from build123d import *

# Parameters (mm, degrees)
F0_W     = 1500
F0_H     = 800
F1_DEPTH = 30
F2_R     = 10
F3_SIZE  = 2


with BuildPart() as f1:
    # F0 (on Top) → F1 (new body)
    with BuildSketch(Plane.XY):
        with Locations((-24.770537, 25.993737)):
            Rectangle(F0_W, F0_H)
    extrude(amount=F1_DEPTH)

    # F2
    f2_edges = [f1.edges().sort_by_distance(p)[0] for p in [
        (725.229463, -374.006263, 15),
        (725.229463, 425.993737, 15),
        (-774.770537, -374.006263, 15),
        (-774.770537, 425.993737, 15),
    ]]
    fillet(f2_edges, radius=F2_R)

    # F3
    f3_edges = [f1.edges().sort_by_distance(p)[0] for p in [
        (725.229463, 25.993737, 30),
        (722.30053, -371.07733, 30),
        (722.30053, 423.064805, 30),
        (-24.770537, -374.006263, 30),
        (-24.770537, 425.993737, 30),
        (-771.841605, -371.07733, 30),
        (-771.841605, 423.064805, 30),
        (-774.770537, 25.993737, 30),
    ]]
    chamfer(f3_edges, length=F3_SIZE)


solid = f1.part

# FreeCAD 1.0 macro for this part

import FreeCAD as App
import Part
import Sketcher
Q = App.Units.Quantity


def edges_at(feature, points):
    """Names of the edges that pass closest to the given points."""
    edges = feature.Shape.Edges
    near = lambda p: min(range(len(edges)), key=lambda i: edges[i].distToShape(Part.Vertex(*p))[0])
    return sorted({f"Edge{near(p) + 1}" for p in points})


def add_polygon(sketch, points):
    """Adds a closed chain of lines whose ends are joined by coincident constraints."""
    first, n = sketch.GeometryCount, len(points)
    for a, b in zip(points, points[1:] + points[:1]):
        sketch.addGeometry(Part.LineSegment(App.Vector(*a, 0), App.Vector(*b, 0)), False)
    for i in range(n):
        sketch.addConstraint(Sketcher.Constraint("Coincident", first + i, 2, first + (i + 1) % n, 1))

doc = App.newDocument("Part")
params = doc.addObject("Spreadsheet::Sheet", "Params")
for row, (alias, value) in enumerate([
    ("sketch1_width", "1500 mm"),
    ("sketch1_height", "800 mm"),
    ("pad1_length", "30 mm"),
    ("fillet_radius", "10 mm"),
    ("chamfer_size", "2 mm"),
], start=1):
    params.set(f"A{row}", alias)
    params.set(f"B{row}", "=" + value)
    params.setAlias(f"B{row}", alias)

body = doc.addObject("PartDesign::Body", "Body")

sketch1 = body.newObject("Sketcher::SketchObject", "Sketch")
sketch1.AttachmentSupport = (doc.getObject("XY_Plane"), [""])
sketch1.MapMode = "FlatFace"
add_polygon(sketch1, [(-775, 426), (-775, -374), (725, -374), (725, 426)])
sketch1.addConstraint([
    Sketcher.Constraint("Vertical", 0),
    Sketcher.Constraint("Horizontal", 1),
    Sketcher.Constraint("Vertical", 2),
    Sketcher.Constraint("Horizontal", 3),
    Sketcher.Constraint("DistanceX", 1, 1, 1, 2, Q("1500 mm")),
    Sketcher.Constraint("DistanceY", 0, 2, 0, 1, Q("800 mm")),
    Sketcher.Constraint("DistanceX", 0, 2, -1, 1, Q("774.770537 mm")),
    Sketcher.Constraint("DistanceY", 0, 2, -1, 1, Q("374.006263 mm")),
])
sketch1.setExpression("Constraints[8]", "Params.sketch1_width")
sketch1.setExpression("Constraints[9]", "Params.sketch1_height")
pad1 = body.newObject("PartDesign::Pad", "Pad")
pad1.Profile = sketch1
pad1.setExpression("Length", "Params.pad1_length")
doc.recompute()

fillet = body.newObject("PartDesign::Fillet", "Fillet")
fillet.Base = (pad1, edges_at(pad1, [
    (725.229, -374.006, 15),
    (725.229, 425.994, 15),
    (-774.771, -374.006, 15),
    (-774.771, 425.994, 15),
]))
fillet.setExpression("Radius", "Params.fillet_radius")
doc.recompute()

chamfer = body.newObject("PartDesign::Chamfer", "Chamfer")
chamfer.Base = (fillet, edges_at(fillet, [
    (725.229, 25.994, 30),
    (722.301, -371.077, 30),
    (722.301, 423.065, 30),
    (-24.771, -374.006, 30),
    (-24.771, 425.994, 30),
    (-771.842, -371.077, 30),
    (-771.842, 423.065, 30),
    (-774.771, 25.994, 30),
]))
chamfer.setExpression("Size", "Params.chamfer_size")

doc.recompute()
